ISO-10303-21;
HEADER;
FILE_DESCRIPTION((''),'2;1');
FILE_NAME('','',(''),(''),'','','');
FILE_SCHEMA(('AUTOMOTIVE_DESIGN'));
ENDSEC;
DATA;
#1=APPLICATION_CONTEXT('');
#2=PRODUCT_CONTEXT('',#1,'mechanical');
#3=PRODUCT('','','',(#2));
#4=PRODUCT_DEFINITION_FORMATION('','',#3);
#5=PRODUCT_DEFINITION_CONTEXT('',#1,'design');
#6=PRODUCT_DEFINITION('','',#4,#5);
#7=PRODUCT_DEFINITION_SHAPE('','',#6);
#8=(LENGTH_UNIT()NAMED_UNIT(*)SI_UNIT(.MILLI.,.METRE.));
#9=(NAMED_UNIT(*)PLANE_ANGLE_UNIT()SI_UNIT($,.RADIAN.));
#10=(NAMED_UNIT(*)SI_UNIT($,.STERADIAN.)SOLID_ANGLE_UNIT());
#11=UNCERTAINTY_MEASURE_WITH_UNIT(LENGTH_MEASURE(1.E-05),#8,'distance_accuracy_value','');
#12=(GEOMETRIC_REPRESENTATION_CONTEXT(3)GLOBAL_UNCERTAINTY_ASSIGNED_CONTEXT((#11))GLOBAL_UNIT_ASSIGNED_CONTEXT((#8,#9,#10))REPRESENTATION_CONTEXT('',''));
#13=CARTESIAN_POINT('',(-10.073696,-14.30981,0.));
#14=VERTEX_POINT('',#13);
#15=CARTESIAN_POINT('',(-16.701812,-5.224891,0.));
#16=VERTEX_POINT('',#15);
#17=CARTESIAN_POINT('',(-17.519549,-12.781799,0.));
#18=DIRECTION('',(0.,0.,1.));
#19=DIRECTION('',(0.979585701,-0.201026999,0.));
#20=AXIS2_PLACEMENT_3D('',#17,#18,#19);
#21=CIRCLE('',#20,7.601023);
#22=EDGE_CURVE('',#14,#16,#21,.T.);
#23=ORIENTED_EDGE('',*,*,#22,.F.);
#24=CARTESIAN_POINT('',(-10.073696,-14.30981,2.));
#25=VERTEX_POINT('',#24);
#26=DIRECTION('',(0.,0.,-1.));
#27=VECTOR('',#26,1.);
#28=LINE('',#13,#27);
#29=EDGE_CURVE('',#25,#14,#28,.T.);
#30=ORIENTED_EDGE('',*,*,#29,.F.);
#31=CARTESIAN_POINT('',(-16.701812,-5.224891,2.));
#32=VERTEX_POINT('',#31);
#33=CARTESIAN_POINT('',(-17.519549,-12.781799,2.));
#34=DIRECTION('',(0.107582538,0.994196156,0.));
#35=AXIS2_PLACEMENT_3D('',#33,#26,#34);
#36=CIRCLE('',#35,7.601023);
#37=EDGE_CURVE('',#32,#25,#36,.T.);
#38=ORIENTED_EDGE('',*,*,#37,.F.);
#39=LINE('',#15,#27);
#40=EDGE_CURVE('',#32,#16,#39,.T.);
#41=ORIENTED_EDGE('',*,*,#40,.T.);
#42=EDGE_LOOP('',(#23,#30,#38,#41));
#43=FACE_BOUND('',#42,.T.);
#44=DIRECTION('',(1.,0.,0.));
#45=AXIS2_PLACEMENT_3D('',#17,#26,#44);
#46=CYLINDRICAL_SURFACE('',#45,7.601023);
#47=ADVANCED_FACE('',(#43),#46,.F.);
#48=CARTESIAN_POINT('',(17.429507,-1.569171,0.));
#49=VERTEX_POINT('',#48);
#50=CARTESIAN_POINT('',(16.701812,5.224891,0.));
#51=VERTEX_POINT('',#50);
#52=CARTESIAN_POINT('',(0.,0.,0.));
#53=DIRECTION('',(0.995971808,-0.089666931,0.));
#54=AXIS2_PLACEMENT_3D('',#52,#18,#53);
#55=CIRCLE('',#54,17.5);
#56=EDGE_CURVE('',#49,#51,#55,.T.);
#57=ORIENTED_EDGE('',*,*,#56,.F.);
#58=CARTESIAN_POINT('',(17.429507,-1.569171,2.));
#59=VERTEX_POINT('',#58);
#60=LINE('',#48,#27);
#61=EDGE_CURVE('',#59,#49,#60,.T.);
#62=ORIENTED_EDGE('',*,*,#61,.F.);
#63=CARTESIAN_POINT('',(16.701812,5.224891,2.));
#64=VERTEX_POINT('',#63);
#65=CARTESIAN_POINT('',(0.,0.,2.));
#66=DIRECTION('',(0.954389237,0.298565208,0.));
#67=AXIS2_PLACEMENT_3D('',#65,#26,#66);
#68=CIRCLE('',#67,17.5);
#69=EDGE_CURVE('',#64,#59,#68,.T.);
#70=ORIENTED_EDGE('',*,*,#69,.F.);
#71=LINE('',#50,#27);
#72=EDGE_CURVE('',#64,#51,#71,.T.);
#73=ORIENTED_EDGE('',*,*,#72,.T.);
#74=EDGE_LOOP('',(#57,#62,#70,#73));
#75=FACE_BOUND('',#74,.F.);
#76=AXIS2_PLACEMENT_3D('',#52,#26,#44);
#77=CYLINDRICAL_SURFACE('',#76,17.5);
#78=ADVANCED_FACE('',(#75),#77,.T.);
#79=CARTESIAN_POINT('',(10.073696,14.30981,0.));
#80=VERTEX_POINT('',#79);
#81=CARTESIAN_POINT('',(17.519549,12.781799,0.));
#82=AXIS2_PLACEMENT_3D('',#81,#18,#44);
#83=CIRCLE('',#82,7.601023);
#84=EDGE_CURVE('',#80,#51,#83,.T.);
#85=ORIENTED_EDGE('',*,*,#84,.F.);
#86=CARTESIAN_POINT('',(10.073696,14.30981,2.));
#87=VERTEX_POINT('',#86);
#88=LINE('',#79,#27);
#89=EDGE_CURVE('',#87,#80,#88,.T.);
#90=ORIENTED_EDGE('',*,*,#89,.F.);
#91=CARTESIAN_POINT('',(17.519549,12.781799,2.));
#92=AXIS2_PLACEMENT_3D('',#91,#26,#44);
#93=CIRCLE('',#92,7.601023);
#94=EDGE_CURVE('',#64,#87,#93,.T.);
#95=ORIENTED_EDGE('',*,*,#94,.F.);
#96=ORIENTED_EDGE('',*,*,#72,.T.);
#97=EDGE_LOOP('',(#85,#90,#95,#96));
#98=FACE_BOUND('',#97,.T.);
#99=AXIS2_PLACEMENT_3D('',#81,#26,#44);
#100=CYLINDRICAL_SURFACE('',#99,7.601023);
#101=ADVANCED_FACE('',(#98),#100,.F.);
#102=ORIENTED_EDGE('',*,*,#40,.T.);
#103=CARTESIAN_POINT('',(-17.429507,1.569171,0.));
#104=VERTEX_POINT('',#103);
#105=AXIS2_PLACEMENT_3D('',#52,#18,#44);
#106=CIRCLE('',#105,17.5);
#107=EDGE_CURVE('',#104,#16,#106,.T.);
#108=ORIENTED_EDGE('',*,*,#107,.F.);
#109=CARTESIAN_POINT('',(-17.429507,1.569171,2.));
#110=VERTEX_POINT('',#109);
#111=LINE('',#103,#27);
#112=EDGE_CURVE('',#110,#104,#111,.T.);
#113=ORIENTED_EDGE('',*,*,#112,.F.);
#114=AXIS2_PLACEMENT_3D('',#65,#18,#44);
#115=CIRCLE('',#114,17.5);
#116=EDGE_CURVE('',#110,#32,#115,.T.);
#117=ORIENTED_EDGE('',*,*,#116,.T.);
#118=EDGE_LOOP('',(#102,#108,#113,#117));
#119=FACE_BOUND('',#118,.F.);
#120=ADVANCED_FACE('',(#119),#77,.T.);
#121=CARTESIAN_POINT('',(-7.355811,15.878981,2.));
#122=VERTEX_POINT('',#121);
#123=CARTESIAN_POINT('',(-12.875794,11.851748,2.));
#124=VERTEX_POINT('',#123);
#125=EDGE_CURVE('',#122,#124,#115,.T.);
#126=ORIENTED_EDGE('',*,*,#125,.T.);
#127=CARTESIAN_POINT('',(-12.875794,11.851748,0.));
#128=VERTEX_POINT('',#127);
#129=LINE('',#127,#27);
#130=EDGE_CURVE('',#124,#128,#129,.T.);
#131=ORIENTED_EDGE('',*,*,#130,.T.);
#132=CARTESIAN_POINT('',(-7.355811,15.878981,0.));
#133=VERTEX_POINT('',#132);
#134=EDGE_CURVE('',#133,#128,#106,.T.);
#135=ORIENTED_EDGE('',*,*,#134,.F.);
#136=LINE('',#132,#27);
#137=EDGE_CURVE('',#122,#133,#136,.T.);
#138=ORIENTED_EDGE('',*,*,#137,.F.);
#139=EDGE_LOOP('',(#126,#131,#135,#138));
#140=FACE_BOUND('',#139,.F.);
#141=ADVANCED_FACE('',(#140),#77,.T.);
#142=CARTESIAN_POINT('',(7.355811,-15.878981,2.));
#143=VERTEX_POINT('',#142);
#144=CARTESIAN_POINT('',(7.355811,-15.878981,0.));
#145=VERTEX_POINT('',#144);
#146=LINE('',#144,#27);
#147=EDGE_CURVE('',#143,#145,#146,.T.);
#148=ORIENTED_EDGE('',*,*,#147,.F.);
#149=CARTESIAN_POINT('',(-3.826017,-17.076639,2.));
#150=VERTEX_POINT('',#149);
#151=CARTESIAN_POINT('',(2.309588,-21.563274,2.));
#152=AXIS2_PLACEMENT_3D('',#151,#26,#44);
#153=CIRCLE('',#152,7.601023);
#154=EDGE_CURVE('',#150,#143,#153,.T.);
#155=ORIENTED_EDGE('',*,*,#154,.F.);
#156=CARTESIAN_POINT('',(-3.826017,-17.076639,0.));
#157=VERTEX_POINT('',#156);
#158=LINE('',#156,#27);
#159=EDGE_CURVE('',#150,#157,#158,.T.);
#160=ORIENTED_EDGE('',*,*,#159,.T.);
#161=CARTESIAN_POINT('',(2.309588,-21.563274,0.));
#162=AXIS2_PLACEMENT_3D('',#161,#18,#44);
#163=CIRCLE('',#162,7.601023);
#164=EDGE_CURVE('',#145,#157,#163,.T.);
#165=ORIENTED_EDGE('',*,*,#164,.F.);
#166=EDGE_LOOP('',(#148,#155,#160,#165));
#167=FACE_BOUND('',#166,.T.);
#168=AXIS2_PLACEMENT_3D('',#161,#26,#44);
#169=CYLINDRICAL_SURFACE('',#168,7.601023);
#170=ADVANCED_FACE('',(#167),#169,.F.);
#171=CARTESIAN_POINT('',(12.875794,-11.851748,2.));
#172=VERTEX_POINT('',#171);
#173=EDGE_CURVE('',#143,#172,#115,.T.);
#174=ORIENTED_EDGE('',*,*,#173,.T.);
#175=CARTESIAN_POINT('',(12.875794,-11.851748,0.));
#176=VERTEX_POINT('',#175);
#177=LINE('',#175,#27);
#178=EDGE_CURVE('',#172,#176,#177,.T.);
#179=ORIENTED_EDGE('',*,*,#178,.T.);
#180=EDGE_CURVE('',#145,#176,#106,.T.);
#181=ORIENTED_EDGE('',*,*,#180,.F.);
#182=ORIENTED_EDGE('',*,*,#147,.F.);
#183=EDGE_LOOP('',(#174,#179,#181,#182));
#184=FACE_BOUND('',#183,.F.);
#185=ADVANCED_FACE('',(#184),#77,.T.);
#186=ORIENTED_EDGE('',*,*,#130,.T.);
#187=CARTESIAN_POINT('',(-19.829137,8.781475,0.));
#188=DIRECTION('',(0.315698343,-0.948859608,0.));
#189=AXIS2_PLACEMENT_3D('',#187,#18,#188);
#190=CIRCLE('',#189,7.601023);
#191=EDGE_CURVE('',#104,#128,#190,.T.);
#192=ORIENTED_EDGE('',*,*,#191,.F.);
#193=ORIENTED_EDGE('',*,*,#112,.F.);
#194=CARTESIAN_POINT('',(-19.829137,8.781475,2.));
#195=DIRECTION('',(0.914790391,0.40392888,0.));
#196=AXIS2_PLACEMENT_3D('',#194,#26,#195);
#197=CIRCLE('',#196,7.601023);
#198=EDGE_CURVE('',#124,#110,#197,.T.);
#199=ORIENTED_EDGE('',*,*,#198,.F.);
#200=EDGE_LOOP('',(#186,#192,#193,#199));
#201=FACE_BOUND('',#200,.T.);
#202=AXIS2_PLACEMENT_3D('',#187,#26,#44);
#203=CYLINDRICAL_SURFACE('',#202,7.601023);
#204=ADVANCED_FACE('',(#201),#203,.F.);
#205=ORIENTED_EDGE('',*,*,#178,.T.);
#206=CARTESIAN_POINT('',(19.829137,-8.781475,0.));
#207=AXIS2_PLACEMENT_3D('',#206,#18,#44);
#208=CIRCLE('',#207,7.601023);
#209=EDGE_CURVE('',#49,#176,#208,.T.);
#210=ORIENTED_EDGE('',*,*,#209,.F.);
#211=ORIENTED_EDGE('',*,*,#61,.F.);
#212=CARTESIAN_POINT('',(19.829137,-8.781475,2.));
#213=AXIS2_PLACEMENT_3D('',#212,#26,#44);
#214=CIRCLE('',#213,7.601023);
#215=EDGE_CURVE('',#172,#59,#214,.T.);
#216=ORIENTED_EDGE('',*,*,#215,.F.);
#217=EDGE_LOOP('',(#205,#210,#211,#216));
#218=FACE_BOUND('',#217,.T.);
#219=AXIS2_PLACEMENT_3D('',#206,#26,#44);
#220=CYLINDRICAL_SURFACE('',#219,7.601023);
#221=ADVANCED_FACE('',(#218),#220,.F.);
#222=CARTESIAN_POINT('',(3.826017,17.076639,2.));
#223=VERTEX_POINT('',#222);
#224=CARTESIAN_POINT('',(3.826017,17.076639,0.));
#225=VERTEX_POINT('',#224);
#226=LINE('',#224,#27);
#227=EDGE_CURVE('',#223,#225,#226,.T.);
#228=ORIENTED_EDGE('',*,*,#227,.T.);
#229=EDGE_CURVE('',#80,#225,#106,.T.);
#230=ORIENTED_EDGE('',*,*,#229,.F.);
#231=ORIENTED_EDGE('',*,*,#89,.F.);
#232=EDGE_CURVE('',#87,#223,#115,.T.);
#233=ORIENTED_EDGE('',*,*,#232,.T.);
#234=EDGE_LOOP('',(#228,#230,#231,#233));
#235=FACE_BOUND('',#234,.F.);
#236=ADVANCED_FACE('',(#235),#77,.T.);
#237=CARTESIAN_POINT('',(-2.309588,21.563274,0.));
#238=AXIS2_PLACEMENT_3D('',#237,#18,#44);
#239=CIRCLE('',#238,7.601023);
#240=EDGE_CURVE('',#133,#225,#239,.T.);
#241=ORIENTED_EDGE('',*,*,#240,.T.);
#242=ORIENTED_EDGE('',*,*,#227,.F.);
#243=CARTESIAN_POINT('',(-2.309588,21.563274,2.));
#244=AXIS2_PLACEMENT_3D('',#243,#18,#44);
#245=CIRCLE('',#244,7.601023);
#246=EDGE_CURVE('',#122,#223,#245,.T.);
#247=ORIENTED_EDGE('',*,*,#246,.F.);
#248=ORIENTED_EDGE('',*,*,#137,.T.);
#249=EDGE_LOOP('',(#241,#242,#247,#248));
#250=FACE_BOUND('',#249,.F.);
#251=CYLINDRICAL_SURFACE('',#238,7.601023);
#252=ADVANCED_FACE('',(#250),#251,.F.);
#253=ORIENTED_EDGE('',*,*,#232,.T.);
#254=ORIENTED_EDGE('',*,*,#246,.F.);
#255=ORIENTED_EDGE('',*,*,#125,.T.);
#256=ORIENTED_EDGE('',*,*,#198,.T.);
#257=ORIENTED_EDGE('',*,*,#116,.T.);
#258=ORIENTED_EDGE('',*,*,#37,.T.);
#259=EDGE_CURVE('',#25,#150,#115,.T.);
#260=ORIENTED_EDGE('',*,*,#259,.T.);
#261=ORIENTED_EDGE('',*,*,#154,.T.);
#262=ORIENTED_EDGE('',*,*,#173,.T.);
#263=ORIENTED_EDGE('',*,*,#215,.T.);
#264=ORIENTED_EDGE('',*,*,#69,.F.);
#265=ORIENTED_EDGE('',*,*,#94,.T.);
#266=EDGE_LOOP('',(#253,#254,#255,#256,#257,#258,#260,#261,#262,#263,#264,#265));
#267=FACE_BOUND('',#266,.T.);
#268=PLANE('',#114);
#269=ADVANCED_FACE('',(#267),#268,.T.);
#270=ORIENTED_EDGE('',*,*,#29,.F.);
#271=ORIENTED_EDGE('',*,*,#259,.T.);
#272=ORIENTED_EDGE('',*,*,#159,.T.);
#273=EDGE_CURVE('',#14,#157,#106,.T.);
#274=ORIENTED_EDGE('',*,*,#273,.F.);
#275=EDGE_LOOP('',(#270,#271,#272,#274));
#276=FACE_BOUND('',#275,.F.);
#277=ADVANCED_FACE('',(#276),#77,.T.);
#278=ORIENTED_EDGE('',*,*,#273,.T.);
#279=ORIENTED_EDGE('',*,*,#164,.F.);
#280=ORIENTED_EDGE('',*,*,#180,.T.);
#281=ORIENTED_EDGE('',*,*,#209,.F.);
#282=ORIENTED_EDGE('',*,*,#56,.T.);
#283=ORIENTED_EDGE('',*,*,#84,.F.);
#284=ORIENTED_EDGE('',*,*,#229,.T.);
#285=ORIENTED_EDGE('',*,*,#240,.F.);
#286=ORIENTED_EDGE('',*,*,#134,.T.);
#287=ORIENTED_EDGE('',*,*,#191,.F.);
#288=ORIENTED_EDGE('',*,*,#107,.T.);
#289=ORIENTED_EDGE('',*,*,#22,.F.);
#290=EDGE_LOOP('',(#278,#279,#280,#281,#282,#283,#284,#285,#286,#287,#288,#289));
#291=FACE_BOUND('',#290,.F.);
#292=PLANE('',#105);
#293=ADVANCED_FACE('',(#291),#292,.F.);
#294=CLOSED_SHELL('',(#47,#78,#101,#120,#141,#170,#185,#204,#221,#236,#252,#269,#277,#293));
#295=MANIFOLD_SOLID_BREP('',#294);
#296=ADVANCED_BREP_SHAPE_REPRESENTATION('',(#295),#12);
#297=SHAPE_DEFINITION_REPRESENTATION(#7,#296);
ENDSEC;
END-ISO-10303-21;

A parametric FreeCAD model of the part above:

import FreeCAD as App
import Part
import Sketcher
from FreeCAD import Vector

doc = App.newDocument("Part")
body = doc.addObject("PartDesign::Body", "Body")

# Sketch on XY plane
sketch1 = body.newObject("Sketcher::SketchObject", "Sketch")
sketch1.AttachmentSupport = (doc.getObject("XY_Plane"), [""])
sketch1.MapMode = "FlatFace"
sketch1.addGeometry(Part.Circle(Vector(0, 0, 0), Vector(0, 0, 1), 17.5), False)
sketch1.addConstraint(Sketcher.Constraint("Coincident", 0, 3, -1, 1))
sketch1.addConstraint(Sketcher.Constraint("Diameter", 0, 35.0))
pad1 = body.newObject("PartDesign::Pad", "Pad")
pad1.Profile = sketch1
pad1.Length = 2

# Sketch on XY plane
sketch2 = body.newObject("Sketcher::SketchObject", "Sketch001")
sketch2.AttachmentSupport = (doc.getObject("XY_Plane"), [""])
sketch2.MapMode = "FlatFace"
sketch2.addGeometry(Part.Circle(Vector(-19.829137, 8.781475, 0), Vector(0, 0, 1), 7.601023), False)
sketch2.addGeometry(Part.Circle(Vector(-17.519549, -12.781799, 0), Vector(0, 0, 1), 7.601023), False)
sketch2.addGeometry(Part.Circle(Vector(2.309588, -21.563274, 0), Vector(0, 0, 1), 7.601023), False)
sketch2.addGeometry(Part.Circle(Vector(19.829137, -8.781475, 0), Vector(0, 0, 1), 7.601023), False)
sketch2.addGeometry(Part.Circle(Vector(17.519549, 12.781799, 0), Vector(0, 0, 1), 7.601023), False)
sketch2.addGeometry(Part.Circle(Vector(-2.309588, 21.563274, 0), Vector(0, 0, 1), 7.601023), False)
sketch2.addConstraint(Sketcher.Constraint("Equal", 0, 1))
sketch2.addConstraint(Sketcher.Constraint("Equal", 1, 2))
sketch2.addConstraint(Sketcher.Constraint("Equal", 2, 3))
sketch2.addConstraint(Sketcher.Constraint("Equal", 3, 4))
sketch2.addConstraint(Sketcher.Constraint("Equal", 4, 5))
sketch2.addConstraint(Sketcher.Constraint("Symmetric", 0, 3, 3, 3, -1, 1))
sketch2.addConstraint(Sketcher.Constraint("Symmetric", 1, 3, 4, 3, -1, 1))
sketch2.addConstraint(Sketcher.Constraint("Symmetric", 2, 3, 5, 3, -1, 1))
sketch2.addConstraint(Sketcher.Constraint("Diameter", 0, 15.202046))
sketch2.addConstraint(Sketcher.Constraint("DistanceY", 1, 3, -1, 1, 12.781799))
sketch2.addConstraint(Sketcher.Constraint("DistanceY", 2, 3, 3, 3, 12.781799))
sketch2.addConstraint(Sketcher.Constraint("DistanceX", 1, 3, 4, 3, 35.039098))
sketch2.addConstraint(Sketcher.Constraint("DistanceX", -1, 1, 2, 3, 2.309588))
sketch2.addConstraint(Sketcher.Constraint("DistanceY", 2, 3, 0, 3, 30.344749))
sketch2.addConstraint(Sketcher.Constraint("DistanceX", 2, 3, 3, 3, 17.519549))
pocket1 = body.newObject("PartDesign::Pocket", "Pocket")
pocket1.Profile = sketch2
pocket1.Length = 25
pocket1.Midplane = True

doc.recompute()
